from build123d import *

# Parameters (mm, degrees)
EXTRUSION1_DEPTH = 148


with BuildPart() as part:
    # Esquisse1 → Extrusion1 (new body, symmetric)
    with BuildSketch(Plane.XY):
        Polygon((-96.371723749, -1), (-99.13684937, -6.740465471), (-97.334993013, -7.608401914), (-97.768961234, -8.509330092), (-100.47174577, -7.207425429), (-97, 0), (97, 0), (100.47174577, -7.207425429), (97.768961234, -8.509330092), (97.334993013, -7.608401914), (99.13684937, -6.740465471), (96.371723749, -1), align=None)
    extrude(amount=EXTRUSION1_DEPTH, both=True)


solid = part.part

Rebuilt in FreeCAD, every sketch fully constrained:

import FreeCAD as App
import Part
import Sketcher

V = App.Vector

doc = App.newDocument("Part")
body = doc.addObject("PartDesign::Body", "Body")

# Sketch on XY plane
sketch1 = body.newObject("Sketcher::SketchObject", "Sketch")
sketch1.AttachmentSupport = (doc.getObject("XY_Plane"), [""])
sketch1.MapMode = "FlatFace"
sketch1.addGeometry([
    Part.LineSegment(V(-99.1, -6.7, 0), V(-96.4, -1, 0)),  # 0
    Part.LineSegment(V(-96.4, -1, 0), V(96.4, -1, 0)),  # 1
    Part.LineSegment(V(96.4, -1, 0), V(99.1, -6.7, 0)),  # 2
    Part.LineSegment(V(99.1, -6.7, 0), V(97.3, -7.6, 0)),  # 3
    Part.LineSegment(V(97.3, -7.6, 0), V(97.8, -8.5, 0)),  # 4
    Part.LineSegment(V(97.8, -8.5, 0), V(100.5, -7.2, 0)),  # 5
    Part.LineSegment(V(100.5, -7.2, 0), V(97, 0, 0)),  # 6
    Part.LineSegment(V(97, 0, 0), V(-97, 0, 0)),  # 7
    Part.LineSegment(V(-97, 0, 0), V(-100.5, -7.2, 0)),  # 8
    Part.LineSegment(V(-100.5, -7.2, 0), V(-97.8, -8.5, 0)),  # 9
    Part.LineSegment(V(-97.8, -8.5, 0), V(-97.3, -7.6, 0)),  # 10
    Part.LineSegment(V(-97.3, -7.6, 0), V(-99.1, -6.7, 0)),  # 11
], False)
sketch1.addConstraint([
    Sketcher.Constraint("Coincident", 0, 2, 1, 1),
    Sketcher.Constraint("Coincident", 1, 2, 2, 1),
    Sketcher.Constraint("Coincident", 2, 2, 3, 1),
    Sketcher.Constraint("Coincident", 3, 2, 4, 1),
    Sketcher.Constraint("Coincident", 4, 2, 5, 1),
    Sketcher.Constraint("Coincident", 5, 2, 6, 1),
    Sketcher.Constraint("Coincident", 6, 2, 7, 1),
    Sketcher.Constraint("Coincident", 7, 2, 8, 1),
    Sketcher.Constraint("Coincident", 8, 2, 9, 1),
    Sketcher.Constraint("Coincident", 9, 2, 10, 1),
    Sketcher.Constraint("Coincident", 10, 2, 11, 1),
    Sketcher.Constraint("Coincident", 11, 2, 0, 1),
    Sketcher.Constraint("Horizontal", 1),
    Sketcher.Constraint("Horizontal", 7),
    Sketcher.Constraint("Symmetric", 6, 2, 7, 2, -1, 1),
    Sketcher.Constraint("Symmetric", 5, 2, 8, 2, -2),
    Sketcher.Constraint("Symmetric", 4, 2, 9, 2, -2),
    Sketcher.Constraint("Symmetric", 3, 2, 10, 2, -2),
    Sketcher.Constraint("Symmetric", 2, 2, 11, 2, -2),
    Sketcher.Constraint("Perpendicular", 2, 3),
    Sketcher.Constraint("Perpendicular", 3, 4),
    Sketcher.Constraint("Perpendicular", 4, 5),
    Sketcher.Constraint("Perpendicular", 5, 6),
    Sketcher.Constraint("Parallel", 0, 8),
    Sketcher.Constraint("DistanceX", 7, 2, 7, 1, 194.0),
    Sketcher.Constraint("Distance", 3, 2.0),
    Sketcher.Constraint("Distance", 4, 1.0),
    Sketcher.Constraint("Distance", 5, 3.0),
    Sketcher.Constraint("Distance", 6, 8.0),
    Sketcher.Constraint("DistanceY", 0, 2, -1, 1, 1.0),
    Sketcher.Constraint("DistanceY", 3, 2, -1, 1, 7.608402),
])
pad1 = body.newObject("PartDesign::Pad", "Pad")
pad1.Profile = sketch1
pad1.Length = 296
pad1.Midplane = True

doc.recompute()
